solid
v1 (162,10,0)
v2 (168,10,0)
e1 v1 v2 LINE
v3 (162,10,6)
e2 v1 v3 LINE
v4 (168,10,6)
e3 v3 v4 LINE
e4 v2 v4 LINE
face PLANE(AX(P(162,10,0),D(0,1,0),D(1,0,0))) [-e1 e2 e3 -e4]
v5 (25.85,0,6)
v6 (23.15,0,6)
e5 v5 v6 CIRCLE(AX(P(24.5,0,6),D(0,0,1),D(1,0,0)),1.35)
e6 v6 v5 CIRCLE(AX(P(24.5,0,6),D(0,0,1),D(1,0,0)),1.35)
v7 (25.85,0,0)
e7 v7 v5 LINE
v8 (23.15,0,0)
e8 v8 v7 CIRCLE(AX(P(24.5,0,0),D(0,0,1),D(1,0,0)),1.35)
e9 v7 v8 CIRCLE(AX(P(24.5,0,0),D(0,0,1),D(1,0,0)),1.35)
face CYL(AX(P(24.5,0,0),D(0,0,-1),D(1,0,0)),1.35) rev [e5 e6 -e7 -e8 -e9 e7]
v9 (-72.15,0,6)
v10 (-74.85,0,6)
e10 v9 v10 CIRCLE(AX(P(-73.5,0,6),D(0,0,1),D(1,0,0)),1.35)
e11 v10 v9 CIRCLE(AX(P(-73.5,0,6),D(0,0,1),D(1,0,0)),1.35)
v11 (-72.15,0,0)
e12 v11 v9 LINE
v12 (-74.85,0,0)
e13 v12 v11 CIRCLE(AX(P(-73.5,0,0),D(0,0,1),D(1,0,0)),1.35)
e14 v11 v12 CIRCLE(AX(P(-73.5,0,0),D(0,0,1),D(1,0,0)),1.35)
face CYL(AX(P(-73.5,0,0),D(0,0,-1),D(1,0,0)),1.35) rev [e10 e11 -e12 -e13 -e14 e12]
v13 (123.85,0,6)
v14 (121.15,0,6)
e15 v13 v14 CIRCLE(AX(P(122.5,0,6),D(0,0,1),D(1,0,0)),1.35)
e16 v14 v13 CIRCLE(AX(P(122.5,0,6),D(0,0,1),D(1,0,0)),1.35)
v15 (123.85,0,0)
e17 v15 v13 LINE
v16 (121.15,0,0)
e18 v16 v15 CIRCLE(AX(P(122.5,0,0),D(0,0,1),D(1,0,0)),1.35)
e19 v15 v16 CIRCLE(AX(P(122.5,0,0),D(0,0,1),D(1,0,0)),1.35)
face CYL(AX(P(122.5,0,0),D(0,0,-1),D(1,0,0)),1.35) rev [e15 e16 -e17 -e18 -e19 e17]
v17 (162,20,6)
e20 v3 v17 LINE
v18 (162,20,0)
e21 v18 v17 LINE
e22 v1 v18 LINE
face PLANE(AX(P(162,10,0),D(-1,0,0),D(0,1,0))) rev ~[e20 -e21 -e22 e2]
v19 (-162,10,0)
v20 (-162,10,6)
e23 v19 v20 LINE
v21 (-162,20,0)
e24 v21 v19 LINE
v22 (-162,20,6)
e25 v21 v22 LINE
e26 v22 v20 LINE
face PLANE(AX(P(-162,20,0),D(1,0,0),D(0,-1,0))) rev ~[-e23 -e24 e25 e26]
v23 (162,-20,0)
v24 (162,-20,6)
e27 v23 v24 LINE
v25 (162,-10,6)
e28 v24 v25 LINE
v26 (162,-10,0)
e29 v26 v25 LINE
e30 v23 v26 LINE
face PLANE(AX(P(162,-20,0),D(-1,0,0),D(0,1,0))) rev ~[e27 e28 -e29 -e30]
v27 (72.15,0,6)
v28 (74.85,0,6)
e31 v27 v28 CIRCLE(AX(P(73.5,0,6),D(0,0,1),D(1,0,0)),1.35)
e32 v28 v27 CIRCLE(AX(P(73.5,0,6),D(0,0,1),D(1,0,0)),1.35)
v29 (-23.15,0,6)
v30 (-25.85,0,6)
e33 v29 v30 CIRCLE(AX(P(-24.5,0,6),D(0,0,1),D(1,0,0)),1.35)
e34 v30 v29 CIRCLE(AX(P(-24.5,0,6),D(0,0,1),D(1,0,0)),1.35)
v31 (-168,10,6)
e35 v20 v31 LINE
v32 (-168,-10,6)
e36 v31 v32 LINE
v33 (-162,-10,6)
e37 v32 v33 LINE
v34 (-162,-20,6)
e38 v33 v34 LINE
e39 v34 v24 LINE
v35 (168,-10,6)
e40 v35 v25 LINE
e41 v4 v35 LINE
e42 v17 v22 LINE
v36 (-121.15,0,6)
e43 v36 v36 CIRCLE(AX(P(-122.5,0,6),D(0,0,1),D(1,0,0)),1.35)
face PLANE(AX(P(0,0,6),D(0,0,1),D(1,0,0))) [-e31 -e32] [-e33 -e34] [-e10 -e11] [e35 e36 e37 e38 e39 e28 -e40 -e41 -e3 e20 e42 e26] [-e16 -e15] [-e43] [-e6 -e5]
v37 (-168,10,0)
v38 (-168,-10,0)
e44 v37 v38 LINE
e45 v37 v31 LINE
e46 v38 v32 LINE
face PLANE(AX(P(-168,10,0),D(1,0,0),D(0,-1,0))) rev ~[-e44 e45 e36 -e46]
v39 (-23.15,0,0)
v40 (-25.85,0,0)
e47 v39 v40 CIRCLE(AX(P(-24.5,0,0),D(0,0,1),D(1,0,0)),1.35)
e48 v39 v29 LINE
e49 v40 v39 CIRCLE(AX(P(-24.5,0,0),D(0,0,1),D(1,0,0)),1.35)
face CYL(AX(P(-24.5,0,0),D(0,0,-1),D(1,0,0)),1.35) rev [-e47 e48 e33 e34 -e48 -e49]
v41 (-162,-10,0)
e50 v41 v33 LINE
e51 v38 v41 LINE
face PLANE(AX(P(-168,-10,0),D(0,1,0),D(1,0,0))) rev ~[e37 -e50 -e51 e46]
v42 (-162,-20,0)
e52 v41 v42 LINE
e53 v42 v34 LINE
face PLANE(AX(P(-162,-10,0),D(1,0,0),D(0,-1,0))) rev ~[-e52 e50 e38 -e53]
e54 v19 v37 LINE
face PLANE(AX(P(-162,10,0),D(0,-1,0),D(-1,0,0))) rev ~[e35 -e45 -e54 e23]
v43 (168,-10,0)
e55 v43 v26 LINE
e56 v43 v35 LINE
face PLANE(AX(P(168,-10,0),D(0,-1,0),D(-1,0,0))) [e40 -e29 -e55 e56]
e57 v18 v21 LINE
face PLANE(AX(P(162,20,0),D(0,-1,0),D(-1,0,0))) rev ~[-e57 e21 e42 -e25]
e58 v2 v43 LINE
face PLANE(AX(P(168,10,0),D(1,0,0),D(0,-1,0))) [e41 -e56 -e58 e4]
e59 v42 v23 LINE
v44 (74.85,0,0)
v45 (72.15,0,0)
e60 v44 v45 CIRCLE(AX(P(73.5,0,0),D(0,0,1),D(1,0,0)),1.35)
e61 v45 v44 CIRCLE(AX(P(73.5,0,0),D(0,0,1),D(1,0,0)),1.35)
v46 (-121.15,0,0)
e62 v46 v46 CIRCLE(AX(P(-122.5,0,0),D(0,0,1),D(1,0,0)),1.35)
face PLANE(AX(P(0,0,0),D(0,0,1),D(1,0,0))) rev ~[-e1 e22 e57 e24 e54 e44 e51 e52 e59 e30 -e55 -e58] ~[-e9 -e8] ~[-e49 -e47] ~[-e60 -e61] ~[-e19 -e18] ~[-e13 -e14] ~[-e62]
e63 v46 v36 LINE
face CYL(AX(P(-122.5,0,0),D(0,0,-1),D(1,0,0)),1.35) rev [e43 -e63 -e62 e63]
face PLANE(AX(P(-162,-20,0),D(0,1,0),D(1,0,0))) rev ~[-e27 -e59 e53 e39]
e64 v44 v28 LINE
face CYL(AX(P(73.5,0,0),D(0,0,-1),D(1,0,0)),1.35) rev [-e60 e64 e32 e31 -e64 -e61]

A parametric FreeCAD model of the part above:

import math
import FreeCAD as App
import Part
import Sketcher


def add_polygon(sketch, points):
    """Adds a closed chain of lines whose ends are joined by coincident constraints."""
    first, n = sketch.GeometryCount, len(points)
    for a, b in zip(points, points[1:] + points[:1]):
        sketch.addGeometry(Part.LineSegment(App.Vector(*a, 0), App.Vector(*b, 0)), False)
    for i in range(n):
        sketch.addConstraint(Sketcher.Constraint("Coincident", first + i, 2, first + (i + 1) % n, 1))

doc = App.newDocument("Part")
params = doc.addObject("Spreadsheet::Sheet", "Params")
for row, (alias, value) in enumerate([
    ("sketch1_diameter", "2.7 mm"),
    ("sketch1_height", "10 mm"),
    ("sketch1_height2", "20 mm"),
    ("sketch1_width", "6 mm"),
    ("pad1_length", "6 mm"),
], start=1):
    params.set(f"A{row}", alias)
    params.set(f"B{row}", "=" + value)
    params.setAlias(f"B{row}", alias)

body = doc.addObject("PartDesign::Body", "Body")

sketch1 = doc.addObject("Sketcher::SketchObject", "Sketch")
body.addObject(sketch1)
sketch1.AttachmentSupport = (doc.XY_Plane, [""])
sketch1.MapMode = "FlatFace"
add_polygon(sketch1, [(162, -20), (162, -10), (168, -10), (168, 10), (162, 10), (162, 20), (-162, 20), (-162, 10), (-168, 10), (-168, -10), (-162, -10), (-162, -20)])
sketch1.addGeometry(Part.Circle(App.Vector(-122.5, 0, 0), App.Vector(0, 0, 1), 1.4), False)
sketch1.addGeometry(Part.ArcOfCircle(Part.Circle(App.Vector(-73.5, 0, 0), App.Vector(0, 0, 1), 1.4), math.radians(0), math.radians(180)), False)
sketch1.addGeometry(Part.ArcOfCircle(Part.Circle(App.Vector(-73.5, 0, 0), App.Vector(0, 0, 1), 1.4), math.radians(180), math.radians(360)), False)
sketch1.addGeometry(Part.ArcOfCircle(Part.Circle(App.Vector(-24.5, 0, 0), App.Vector(0, 0, 1), 1.4), math.radians(0), math.radians(180)), False)
sketch1.addGeometry(Part.ArcOfCircle(Part.Circle(App.Vector(-24.5, 0, 0), App.Vector(0, 0, 1), 1.4), math.radians(180), math.radians(360)), False)
sketch1.addGeometry(Part.ArcOfCircle(Part.Circle(App.Vector(24.5, 0, 0), App.Vector(0, 0, 1), 1.4), math.radians(0), math.radians(180)), False)
sketch1.addGeometry(Part.ArcOfCircle(Part.Circle(App.Vector(24.5, 0, 0), App.Vector(0, 0, 1), 1.4), math.radians(180), math.radians(360)), False)
sketch1.addGeometry(Part.ArcOfCircle(Part.Circle(App.Vector(73.5, 0, 0), App.Vector(0, 0, 1), 1.4), math.radians(180), math.radians(360)), False)
sketch1.addGeometry(Part.ArcOfCircle(Part.Circle(App.Vector(73.5, 0, 0), App.Vector(0, 0, 1), 1.4), math.radians(0), math.radians(180)), False)
sketch1.addGeometry(Part.ArcOfCircle(Part.Circle(App.Vector(122.5, 0, 0), App.Vector(0, 0, 1), 1.4), math.radians(180), math.radians(360)), False)
sketch1.addGeometry(Part.ArcOfCircle(Part.Circle(App.Vector(122.5, 0, 0), App.Vector(0, 0, 1), 1.4), math.radians(0), math.radians(180)), False)
sketch1.addConstraint(Sketcher.Constraint("Tangent", 13, 1, 14, 2))
sketch1.addConstraint(Sketcher.Constraint("Coincident", 14, 1, 13, 2))
sketch1.addConstraint(Sketcher.Constraint("Tangent", 15, 1, 16, 2))
sketch1.addConstraint(Sketcher.Constraint("Coincident", 16, 1, 15, 2))
sketch1.addConstraint(Sketcher.Constraint("Tangent", 17, 1, 18, 2))
sketch1.addConstraint(Sketcher.Constraint("Coincident", 18, 1, 17, 2))
sketch1.addConstraint(Sketcher.Constraint("Tangent", 19, 1, 20, 2))
sketch1.addConstraint(Sketcher.Constraint("Coincident", 20, 1, 19, 2))
sketch1.addConstraint(Sketcher.Constraint("Tangent", 21, 1, 22, 2))
sketch1.addConstraint(Sketcher.Constraint("Coincident", 22, 1, 21, 2))
sketch1.addConstraint(Sketcher.Constraint("Vertical", 0))
sketch1.addConstraint(Sketcher.Constraint("Horizontal", 1))
sketch1.addConstraint(Sketcher.Constraint("Vertical", 2))
sketch1.addConstraint(Sketcher.Constraint("Horizontal", 3))
sketch1.addConstraint(Sketcher.Constraint("Vertical", 4))
sketch1.addConstraint(Sketcher.Constraint("Horizontal", 5))
sketch1.addConstraint(Sketcher.Constraint("Vertical", 6))
sketch1.addConstraint(Sketcher.Constraint("Horizontal", 7))
sketch1.addConstraint(Sketcher.Constraint("Vertical", 8))
sketch1.addConstraint(Sketcher.Constraint("Horizontal", 9))
sketch1.addConstraint(Sketcher.Constraint("Vertical", 10))
sketch1.addConstraint(Sketcher.Constraint("Horizontal", 11))
sketch1.addConstraint(Sketcher.Constraint("Equal", 12, 13))
sketch1.addConstraint(Sketcher.Constraint("Equal", 14, 15))
sketch1.addConstraint(Sketcher.Constraint("Equal", 16, 17))
sketch1.addConstraint(Sketcher.Constraint("Equal", 18, 19))
sketch1.addConstraint(Sketcher.Constraint("Equal", 20, 21))
sketch1.addConstraint(Sketcher.Constraint("Symmetric", 15, 3, 17, 3, -1, 1))
sketch1.addConstraint(Sketcher.Constraint("Symmetric", 13, 3, 19, 3, -1, 1))
sketch1.addConstraint(Sketcher.Constraint("Symmetric", 12, 3, 21, 3, -1, 1))
sketch1.addConstraint(Sketcher.Constraint("Symmetric", 0, 2, 6, 2, -1, 1))
sketch1.addConstraint(Sketcher.Constraint("Symmetric", 2, 2, 8, 2, -1, 1))
sketch1.addConstraint(Sketcher.Constraint("Symmetric", 4, 2, 10, 2, -1, 1))
sketch1.addConstraint(Sketcher.Constraint("Symmetric", 3, 2, 6, 2, -2))
sketch1.addConstraint(Sketcher.Constraint("PointOnObject", 12, 3, -1))
sketch1.addConstraint(Sketcher.Constraint("PointOnObject", 13, 3, -1))
sketch1.addConstraint(Sketcher.Constraint("PointOnObject", 15, 3, -1))
sketch1.addConstraint(Sketcher.Constraint("PointOnObject", 13, 1, -1))
sketch1.addConstraint(Sketcher.Constraint("PointOnObject", 14, 1, -1))
sketch1.addConstraint(Sketcher.Constraint("PointOnObject", 15, 1, -1))
sketch1.addConstraint(Sketcher.Constraint("PointOnObject", 16, 1, -1))
sketch1.addConstraint(Sketcher.Constraint("PointOnObject", 17, 1, -1))
sketch1.addConstraint(Sketcher.Constraint("PointOnObject", 18, 1, -1))
sketch1.addConstraint(Sketcher.Constraint("PointOnObject", 19, 1, -1))
sketch1.addConstraint(Sketcher.Constraint("PointOnObject", 20, 1, -1))
sketch1.addConstraint(Sketcher.Constraint("PointOnObject", 21, 1, -1))
sketch1.addConstraint(Sketcher.Constraint("PointOnObject", 22, 1, -1))
sketch1.addConstraint(Sketcher.Constraint("Diameter", 12, 2.7))
sketch1.addConstraint(Sketcher.Constraint("DistanceY", 0, 1, 0, 2, 10.0))
sketch1.addConstraint(Sketcher.Constraint("DistanceY", 2, 1, 2, 2, 20.0))
sketch1.addConstraint(Sketcher.Constraint("DistanceX", -1, 1, 0, 2, 162.0))
sketch1.addConstraint(Sketcher.Constraint("DistanceX", 12, 3, 13, 3, 49.0))
sketch1.addConstraint(Sketcher.Constraint("DistanceX", 13, 3, 15, 3, 49.0))
sketch1.addConstraint(Sketcher.Constraint("DistanceX", 15, 3, 17, 3, 49.0))
sketch1.addConstraint(Sketcher.Constraint("DistanceX", 1, 1, 1, 2, 6.0))
sketch1.setExpression("Constraints[59]", "Params.sketch1_diameter")
sketch1.setExpression("Constraints[60]", "Params.sketch1_height")
sketch1.setExpression("Constraints[61]", "Params.sketch1_height2")
sketch1.setExpression("Constraints[66]", "Params.sketch1_width")
pad1 = doc.addObject("PartDesign::Pad", "Pad")
body.addObject(pad1)
pad1.Profile = sketch1
pad1.setExpression("Length", "Params.pad1_length")

doc.recompute()
